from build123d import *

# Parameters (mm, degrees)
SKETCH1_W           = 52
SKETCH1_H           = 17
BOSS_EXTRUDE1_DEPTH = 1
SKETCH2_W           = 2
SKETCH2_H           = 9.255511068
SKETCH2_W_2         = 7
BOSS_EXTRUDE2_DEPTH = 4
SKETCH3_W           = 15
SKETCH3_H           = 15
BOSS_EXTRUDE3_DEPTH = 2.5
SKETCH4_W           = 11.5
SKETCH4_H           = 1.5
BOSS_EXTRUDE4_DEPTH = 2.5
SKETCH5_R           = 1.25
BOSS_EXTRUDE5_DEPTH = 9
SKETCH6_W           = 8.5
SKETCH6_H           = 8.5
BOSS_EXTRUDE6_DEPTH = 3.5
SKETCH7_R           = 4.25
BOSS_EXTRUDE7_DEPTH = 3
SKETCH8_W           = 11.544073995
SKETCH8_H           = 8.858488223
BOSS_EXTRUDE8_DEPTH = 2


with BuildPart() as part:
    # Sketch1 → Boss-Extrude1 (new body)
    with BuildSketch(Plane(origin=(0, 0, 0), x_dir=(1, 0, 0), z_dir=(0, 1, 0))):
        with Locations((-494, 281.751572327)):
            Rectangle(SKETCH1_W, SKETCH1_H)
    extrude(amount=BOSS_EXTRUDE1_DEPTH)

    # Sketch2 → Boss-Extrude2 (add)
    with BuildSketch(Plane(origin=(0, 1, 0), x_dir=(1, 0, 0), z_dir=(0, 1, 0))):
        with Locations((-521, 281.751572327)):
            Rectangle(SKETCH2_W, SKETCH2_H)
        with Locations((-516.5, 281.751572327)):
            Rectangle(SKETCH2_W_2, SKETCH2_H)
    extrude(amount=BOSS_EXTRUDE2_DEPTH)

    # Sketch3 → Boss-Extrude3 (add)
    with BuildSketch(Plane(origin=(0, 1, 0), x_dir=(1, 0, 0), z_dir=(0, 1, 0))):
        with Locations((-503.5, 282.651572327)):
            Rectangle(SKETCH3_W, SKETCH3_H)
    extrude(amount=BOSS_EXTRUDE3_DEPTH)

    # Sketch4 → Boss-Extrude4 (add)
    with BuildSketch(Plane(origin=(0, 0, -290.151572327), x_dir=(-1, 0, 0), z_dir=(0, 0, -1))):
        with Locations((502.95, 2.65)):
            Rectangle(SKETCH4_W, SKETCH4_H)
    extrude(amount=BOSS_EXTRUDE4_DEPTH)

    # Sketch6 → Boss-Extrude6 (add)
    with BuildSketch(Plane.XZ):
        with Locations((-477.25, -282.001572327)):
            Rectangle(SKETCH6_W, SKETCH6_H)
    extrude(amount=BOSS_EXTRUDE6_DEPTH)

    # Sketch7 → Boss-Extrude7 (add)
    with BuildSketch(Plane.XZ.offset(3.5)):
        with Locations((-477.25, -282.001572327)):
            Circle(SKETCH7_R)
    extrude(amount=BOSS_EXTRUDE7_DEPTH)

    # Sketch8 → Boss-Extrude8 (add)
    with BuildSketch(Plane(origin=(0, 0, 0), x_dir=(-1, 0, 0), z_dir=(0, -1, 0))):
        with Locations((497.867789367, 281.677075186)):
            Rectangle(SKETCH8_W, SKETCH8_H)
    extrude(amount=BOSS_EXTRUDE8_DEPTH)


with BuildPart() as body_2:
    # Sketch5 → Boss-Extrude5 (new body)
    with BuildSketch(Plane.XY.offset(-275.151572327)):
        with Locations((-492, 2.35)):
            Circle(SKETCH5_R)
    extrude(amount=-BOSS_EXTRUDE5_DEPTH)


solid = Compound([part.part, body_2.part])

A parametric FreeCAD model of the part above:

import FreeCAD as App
import Part
import Sketcher

V = App.Vector
Q = App.Units.Quantity

doc = App.newDocument("Part")
body = doc.addObject("PartDesign::Body", "Body")

sketch1 = body.newObject("Sketcher::SketchObject", "Sketch")
sketch1.AttachmentSupport = (doc.getObject("XZ_Plane"), [""])
sketch1.MapMode = "FlatFace"
sketch1.addGeometry(Part.LineSegment(V(-520, -290, 0), V(-520, -273, 0)), False)
sketch1.addGeometry(Part.LineSegment(V(-520, -273, 0), V(-468, -273, 0)), False)
sketch1.addGeometry(Part.LineSegment(V(-468, -273, 0), V(-468, -290, 0)), False)
sketch1.addGeometry(Part.LineSegment(V(-468, -290, 0), V(-520, -290, 0)), False)
sketch1.addConstraint(Sketcher.Constraint("Coincident", 0, 2, 1, 1))
sketch1.addConstraint(Sketcher.Constraint("Coincident", 1, 2, 2, 1))
sketch1.addConstraint(Sketcher.Constraint("Coincident", 2, 2, 3, 1))
sketch1.addConstraint(Sketcher.Constraint("Coincident", 3, 2, 0, 1))
sketch1.addConstraint(Sketcher.Constraint("Vertical", 0))
sketch1.addConstraint(Sketcher.Constraint("Horizontal", 1))
sketch1.addConstraint(Sketcher.Constraint("Vertical", 2))
sketch1.addConstraint(Sketcher.Constraint("Horizontal", 3))
sketch1.addConstraint(Sketcher.Constraint("DistanceX", 1, 1, 1, 2, Q("52 mm")))
sketch1.addConstraint(Sketcher.Constraint("DistanceY", 0, 1, 0, 2, Q("17 mm")))
sketch1.addConstraint(Sketcher.Constraint("DistanceX", 0, 2, -1, 1, Q("520 mm")))
sketch1.addConstraint(Sketcher.Constraint("DistanceY", 0, 2, -1, 1, Q("273.251572 mm")))
pad1 = body.newObject("PartDesign::Pad", "Pad")
pad1.Profile = sketch1
pad1.Length = 1
pad1.Reversed = True

sketch2 = body.newObject("Sketcher::SketchObject", "Sketch001")
sketch2.AttachmentSupport = (doc.getObject("XZ_Plane"), [""])
sketch2.MapMode = "FlatFace"
sketch2.AttachmentOffset = App.Placement(V(0, 0, -1), App.Rotation())
sketch2.addGeometry(Part.LineSegment(V(-522, -286, 0), V(-522, -277, 0)), False)
sketch2.addGeometry(Part.LineSegment(V(-522, -277, 0), V(-513, -277, 0)), False)
sketch2.addGeometry(Part.LineSegment(V(-513, -277, 0), V(-513, -286, 0)), False)
sketch2.addGeometry(Part.LineSegment(V(-513, -286, 0), V(-522, -286, 0)), False)
sketch2.addConstraint(Sketcher.Constraint("Coincident", 0, 2, 1, 1))
sketch2.addConstraint(Sketcher.Constraint("Coincident", 1, 2, 2, 1))
sketch2.addConstraint(Sketcher.Constraint("Coincident", 2, 2, 3, 1))
sketch2.addConstraint(Sketcher.Constraint("Coincident", 3, 2, 0, 1))
sketch2.addConstraint(Sketcher.Constraint("Vertical", 0))
sketch2.addConstraint(Sketcher.Constraint("Horizontal", 1))
sketch2.addConstraint(Sketcher.Constraint("Vertical", 2))
sketch2.addConstraint(Sketcher.Constraint("Horizontal", 3))
sketch2.addConstraint(Sketcher.Constraint("DistanceX", 1, 1, 1, 2, Q("9 mm")))
sketch2.addConstraint(Sketcher.Constraint("DistanceX", 0, 2, -1, 1, Q("522 mm")))
sketch2.addConstraint(Sketcher.Constraint("DistanceY", 0, 1, 0, 2, Q("9.255511 mm")))
sketch2.addConstraint(Sketcher.Constraint("DistanceY", 0, 2, -1, 1, Q("277.123817 mm")))
pad2 = body.newObject("PartDesign::Pad", "Pad001")
pad2.Profile = sketch2
pad2.Length = 4
pad2.Reversed = True

sketch3 = body.newObject("Sketcher::SketchObject", "Sketch002")
sketch3.AttachmentSupport = (doc.getObject("XZ_Plane"), [""])
sketch3.MapMode = "FlatFace"
sketch3.AttachmentOffset = App.Placement(V(0, 0, -1), App.Rotation())
sketch3.addGeometry(Part.LineSegment(V(-511, -290, 0), V(-511, -275, 0)), False)
sketch3.addGeometry(Part.LineSegment(V(-511, -275, 0), V(-496, -275, 0)), False)
sketch3.addGeometry(Part.LineSegment(V(-496, -275, 0), V(-496, -290, 0)), False)
sketch3.addGeometry(Part.LineSegment(V(-496, -290, 0), V(-511, -290, 0)), False)
sketch3.addConstraint(Sketcher.Constraint("Coincident", 0, 2, 1, 1))
sketch3.addConstraint(Sketcher.Constraint("Coincident", 1, 2, 2, 1))
sketch3.addConstraint(Sketcher.Constraint("Coincident", 2, 2, 3, 1))
sketch3.addConstraint(Sketcher.Constraint("Coincident", 3, 2, 0, 1))
sketch3.addConstraint(Sketcher.Constraint("Vertical", 0))
sketch3.addConstraint(Sketcher.Constraint("Horizontal", 1))
sketch3.addConstraint(Sketcher.Constraint("Vertical", 2))
sketch3.addConstraint(Sketcher.Constraint("Horizontal", 3))
sketch3.addConstraint(Sketcher.Constraint("Equal", 3, 0))
sketch3.addConstraint(Sketcher.Constraint("DistanceX", 1, 1, 1, 2, Q("15 mm")))
sketch3.addConstraint(Sketcher.Constraint("DistanceX", 0, 2, -1, 1, Q("511 mm")))
sketch3.addConstraint(Sketcher.Constraint("DistanceY", 0, 2, -1, 1, Q("275.151572 mm")))
pad3 = body.newObject("PartDesign::Pad", "Pad002")
pad3.Profile = sketch3
pad3.Length = 2.5
pad3.Reversed = True

sketch4 = body.newObject("Sketcher::SketchObject", "Sketch003")
sketch4.AttachmentSupport = (doc.getObject("XY_Plane"), [""])
sketch4.MapMode = "FlatFace"
sketch4.AttachmentOffset = App.Placement(V(0, 0, -290.151572), App.Rotation())
sketch4.addGeometry(Part.LineSegment(V(-497.2, 3.4, 0), V(-497.2, 1.9, 0)), False)
sketch4.addGeometry(Part.LineSegment(V(-497.2, 1.9, 0), V(-508.7, 1.9, 0)), False)
sketch4.addGeometry(Part.LineSegment(V(-508.7, 1.9, 0), V(-508.7, 3.4, 0)), False)
sketch4.addGeometry(Part.LineSegment(V(-508.7, 3.4, 0), V(-497.2, 3.4, 0)), False)
sketch4.addConstraint(Sketcher.Constraint("Coincident", 0, 2, 1, 1))
sketch4.addConstraint(Sketcher.Constraint("Coincident", 1, 2, 2, 1))
sketch4.addConstraint(Sketcher.Constraint("Coincident", 2, 2, 3, 1))
sketch4.addConstraint(Sketcher.Constraint("Coincident", 3, 2, 0, 1))
sketch4.addConstraint(Sketcher.Constraint("Vertical", 0))
sketch4.addConstraint(Sketcher.Constraint("Horizontal", 1))
sketch4.addConstraint(Sketcher.Constraint("Vertical", 2))
sketch4.addConstraint(Sketcher.Constraint("Horizontal", 3))
sketch4.addConstraint(Sketcher.Constraint("DistanceX", 1, 2, 1, 1, Q("11.5 mm")))
sketch4.addConstraint(Sketcher.Constraint("DistanceY", 0, 2, 0, 1, Q("1.5 mm")))
sketch4.addConstraint(Sketcher.Constraint("DistanceX", 0, 2, -1, 1, Q("497.2 mm")))
sketch4.addConstraint(Sketcher.Constraint("DistanceY", -1, 1, 0, 2, Q("1.9 mm")))
pad4 = body.newObject("PartDesign::Pad", "Pad003")
pad4.Profile = sketch4
pad4.Length = 2.5
pad4.Reversed = True

sketch5 = body.newObject("Sketcher::SketchObject", "Sketch004")
sketch5.AttachmentSupport = (doc.getObject("XZ_Plane"), [""])
sketch5.MapMode = "FlatFace"
sketch5.addGeometry(Part.LineSegment(V(-482, -278, 0), V(-482, -286, 0)), False)
sketch5.addGeometry(Part.LineSegment(V(-482, -286, 0), V(-473, -286, 0)), False)
sketch5.addGeometry(Part.LineSegment(V(-473, -286, 0), V(-473, -278, 0)), False)
sketch5.addGeometry(Part.LineSegment(V(-473, -278, 0), V(-482, -278, 0)), False)
sketch5.addConstraint(Sketcher.Constraint("Coincident", 0, 2, 1, 1))
sketch5.addConstraint(Sketcher.Constraint("Coincident", 1, 2, 2, 1))
sketch5.addConstraint(Sketcher.Constraint("Coincident", 2, 2, 3, 1))
sketch5.addConstraint(Sketcher.Constraint("Coincident", 3, 2, 0, 1))
sketch5.addConstraint(Sketcher.Constraint("Vertical", 0))
sketch5.addConstraint(Sketcher.Constraint("Horizontal", 1))
sketch5.addConstraint(Sketcher.Constraint("Vertical", 2))
sketch5.addConstraint(Sketcher.Constraint("Horizontal", 3))
sketch5.addConstraint(Sketcher.Constraint("Equal", 3, 0))
sketch5.addConstraint(Sketcher.Constraint("DistanceX", 1, 1, 1, 2, Q("8.5 mm")))
sketch5.addConstraint(Sketcher.Constraint("DistanceX", 1, 2, -1, 1, Q("473 mm")))
sketch5.addConstraint(Sketcher.Constraint("DistanceY", 0, 2, -1, 1, Q("286.251572 mm")))
pad5 = body.newObject("PartDesign::Pad", "Pad004")
pad5.Profile = sketch5
pad5.Length = 3.5

sketch6 = body.newObject("Sketcher::SketchObject", "Sketch005")
sketch6.AttachmentSupport = (doc.getObject("XZ_Plane"), [""])
sketch6.MapMode = "FlatFace"
sketch6.AttachmentOffset = App.Placement(V(0, 0, 3.5), App.Rotation())
sketch6.addGeometry(Part.Circle(V(-477.2, -282, 0), V(0, 0, 1), 4.2), False)
sketch6.addConstraint(Sketcher.Constraint("Diameter", 0, Q("8.5 mm")))
sketch6.addConstraint(Sketcher.Constraint("DistanceX", 0, 3, -1, 1, Q("477.25 mm")))
sketch6.addConstraint(Sketcher.Constraint("DistanceY", 0, 3, -1, 1, Q("282.001572 mm")))
pad6 = body.newObject("PartDesign::Pad", "Pad005")
pad6.Profile = sketch6
pad6.Length = 3

sketch7 = body.newObject("Sketcher::SketchObject", "Sketch006")
sketch7.AttachmentSupport = (doc.getObject("XZ_Plane"), [""])
sketch7.MapMode = "FlatFace"
sketch7.addGeometry(Part.LineSegment(V(-492, -286, 0), V(-492, -277, 0)), False)
sketch7.addGeometry(Part.LineSegment(V(-492, -277, 0), V(-504, -277, 0)), False)
sketch7.addGeometry(Part.LineSegment(V(-504, -277, 0), V(-504, -286, 0)), False)
sketch7.addGeometry(Part.LineSegment(V(-504, -286, 0), V(-492, -286, 0)), False)
sketch7.addConstraint(Sketcher.Constraint("Coincident", 0, 2, 1, 1))
sketch7.addConstraint(Sketcher.Constraint("Coincident", 1, 2, 2, 1))
sketch7.addConstraint(Sketcher.Constraint("Coincident", 2, 2, 3, 1))
sketch7.addConstraint(Sketcher.Constraint("Coincident", 3, 2, 0, 1))
sketch7.addConstraint(Sketcher.Constraint("Vertical", 0))
sketch7.addConstraint(Sketcher.Constraint("Horizontal", 1))
sketch7.addConstraint(Sketcher.Constraint("Vertical", 2))
sketch7.addConstraint(Sketcher.Constraint("Horizontal", 3))
sketch7.addConstraint(Sketcher.Constraint("DistanceY", 0, 1, 0, 2, Q("8.858488 mm")))
sketch7.addConstraint(Sketcher.Constraint("DistanceX", 1, 2, 1, 1, Q("11.544074 mm")))
sketch7.addConstraint(Sketcher.Constraint("DistanceY", 0, 2, -1, 1, Q("277.247831 mm")))
sketch7.addConstraint(Sketcher.Constraint("DistanceX", 0, 2, -1, 1, Q("492.095752 mm")))
pad7 = body.newObject("PartDesign::Pad", "Pad006")
pad7.Profile = sketch7
pad7.Length = 2
body2 = doc.addObject("PartDesign::Body", "Body001")

sketch8 = body2.newObject("Sketcher::SketchObject", "Sketch007")
sketch8.AttachmentSupport = (doc.getObject("XY_Plane001"), [""])
sketch8.MapMode = "FlatFace"
sketch8.AttachmentOffset = App.Placement(V(0, 0, -275.151572), App.Rotation())
sketch8.addGeometry(Part.Circle(V(-492, 2.4, 0), V(0, 0, 1), 1.2), False)
sketch8.addConstraint(Sketcher.Constraint("Diameter", 0, Q("2.5 mm")))
sketch8.addConstraint(Sketcher.Constraint("DistanceX", 0, 3, -1, 1, Q("492 mm")))
sketch8.addConstraint(Sketcher.Constraint("DistanceY", -1, 1, 0, 3, Q("2.35 mm")))
pad8 = body2.newObject("PartDesign::Pad", "Pad007")
pad8.Profile = sketch8
pad8.Length = 9
pad8.Reversed = True

doc.recompute()
